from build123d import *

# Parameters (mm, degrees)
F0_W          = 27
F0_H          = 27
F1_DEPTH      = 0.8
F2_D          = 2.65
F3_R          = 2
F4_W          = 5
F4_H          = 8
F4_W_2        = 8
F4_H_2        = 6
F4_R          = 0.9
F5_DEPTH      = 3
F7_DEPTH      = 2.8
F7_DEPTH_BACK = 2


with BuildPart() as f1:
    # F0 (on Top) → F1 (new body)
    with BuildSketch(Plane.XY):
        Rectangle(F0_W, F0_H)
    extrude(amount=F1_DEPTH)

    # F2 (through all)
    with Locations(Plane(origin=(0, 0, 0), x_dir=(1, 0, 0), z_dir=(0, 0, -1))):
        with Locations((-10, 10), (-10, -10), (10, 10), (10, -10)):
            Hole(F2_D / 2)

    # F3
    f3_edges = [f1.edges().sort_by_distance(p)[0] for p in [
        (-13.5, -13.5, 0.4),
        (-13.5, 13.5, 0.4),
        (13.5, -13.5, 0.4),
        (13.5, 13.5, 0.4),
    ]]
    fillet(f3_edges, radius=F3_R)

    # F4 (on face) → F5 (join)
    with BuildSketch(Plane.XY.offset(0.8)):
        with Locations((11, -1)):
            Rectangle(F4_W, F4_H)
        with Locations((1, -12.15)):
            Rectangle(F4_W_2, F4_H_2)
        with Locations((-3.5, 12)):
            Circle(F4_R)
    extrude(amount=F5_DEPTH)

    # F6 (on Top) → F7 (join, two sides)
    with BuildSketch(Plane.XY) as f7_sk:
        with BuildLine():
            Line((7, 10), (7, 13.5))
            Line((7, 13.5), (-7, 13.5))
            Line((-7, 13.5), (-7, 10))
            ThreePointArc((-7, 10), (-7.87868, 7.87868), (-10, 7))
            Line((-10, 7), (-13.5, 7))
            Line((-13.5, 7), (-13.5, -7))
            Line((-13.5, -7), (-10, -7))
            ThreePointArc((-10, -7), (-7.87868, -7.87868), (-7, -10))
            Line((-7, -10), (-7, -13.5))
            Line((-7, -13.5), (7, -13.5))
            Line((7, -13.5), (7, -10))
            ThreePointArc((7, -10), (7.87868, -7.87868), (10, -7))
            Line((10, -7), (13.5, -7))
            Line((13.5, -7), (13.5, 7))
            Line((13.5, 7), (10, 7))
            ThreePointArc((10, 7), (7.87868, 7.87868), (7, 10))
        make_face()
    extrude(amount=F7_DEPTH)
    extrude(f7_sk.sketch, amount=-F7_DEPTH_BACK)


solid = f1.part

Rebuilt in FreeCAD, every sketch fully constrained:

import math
import FreeCAD as App
import Part
import Sketcher
from FreeCAD import Vector
Q = App.Units.Quantity


def edges_at(feature, points):
    """Names of the edges that pass closest to the given points."""
    edges = feature.Shape.Edges
    near = lambda p: min(range(len(edges)), key=lambda i: edges[i].distToShape(Part.Vertex(*p))[0])
    return sorted({f"Edge{near(p) + 1}" for p in points})

doc = App.newDocument("Part")
body = doc.addObject("PartDesign::Body", "Body")

sketch1 = body.newObject("Sketcher::SketchObject", "Sketch")
sketch1.AttachmentSupport = (doc.getObject("XY_Plane"), [""])
sketch1.MapMode = "FlatFace"
sketch1.addGeometry(Part.LineSegment(Vector(-14, 14, 0), Vector(-14, -14, 0)), False)
sketch1.addGeometry(Part.LineSegment(Vector(-14, -14, 0), Vector(14, -14, 0)), False)
sketch1.addGeometry(Part.LineSegment(Vector(14, -14, 0), Vector(14, 14, 0)), False)
sketch1.addGeometry(Part.LineSegment(Vector(14, 14, 0), Vector(-14, 14, 0)), False)
sketch1.addConstraint(Sketcher.Constraint("Coincident", 0, 2, 1, 1))
sketch1.addConstraint(Sketcher.Constraint("Coincident", 1, 2, 2, 1))
sketch1.addConstraint(Sketcher.Constraint("Coincident", 2, 2, 3, 1))
sketch1.addConstraint(Sketcher.Constraint("Coincident", 3, 2, 0, 1))
sketch1.addConstraint(Sketcher.Constraint("Vertical", 0))
sketch1.addConstraint(Sketcher.Constraint("Horizontal", 1))
sketch1.addConstraint(Sketcher.Constraint("Vertical", 2))
sketch1.addConstraint(Sketcher.Constraint("Horizontal", 3))
sketch1.addConstraint(Sketcher.Constraint("Symmetric", 0, 2, 2, 2, -1, 1))
sketch1.addConstraint(Sketcher.Constraint("Equal", 3, 0))
sketch1.addConstraint(Sketcher.Constraint("DistanceX", 1, 1, 1, 2, Q("27 mm")))
pad1 = body.newObject("PartDesign::Pad", "Pad")
pad1.Profile = sketch1
pad1.Length = 0.8

sketch2 = body.newObject("Sketcher::SketchObject", "Sketch001")
sketch2.AttachmentSupport = (doc.getObject("XY_Plane"), [""])
sketch2.MapMode = "FlatFace"
sketch2.addGeometry(Part.Circle(Vector(-10, -10, 0), Vector(0, 0, 1), 1.3), False)
sketch2.addGeometry(Part.Circle(Vector(-10, 10, 0), Vector(0, 0, 1), 1.3), False)
sketch2.addGeometry(Part.Circle(Vector(10, -10, 0), Vector(0, 0, 1), 1.3), False)
sketch2.addGeometry(Part.Circle(Vector(10, 10, 0), Vector(0, 0, 1), 1.3), False)
sketch2.addConstraint(Sketcher.Constraint("Equal", 0, 1))
sketch2.addConstraint(Sketcher.Constraint("Equal", 1, 2))
sketch2.addConstraint(Sketcher.Constraint("Equal", 2, 3))
sketch2.addConstraint(Sketcher.Constraint("Symmetric", 1, 3, 2, 3, -1, 1))
sketch2.addConstraint(Sketcher.Constraint("Symmetric", 0, 3, 3, 3, -1, 1))
sketch2.addConstraint(Sketcher.Constraint("Symmetric", 0, 3, 2, 3, -2))
sketch2.addConstraint(Sketcher.Constraint("Diameter", 0, Q("2.65 mm")))
sketch2.addConstraint(Sketcher.Constraint("DistanceX", 0, 3, -1, 1, Q("10 mm")))
sketch2.addConstraint(Sketcher.Constraint("DistanceY", 0, 3, -1, 1, Q("10 mm")))
doc.recompute()
hole = body.newObject("PartDesign::Hole", "Hole")
hole.Profile = sketch2
hole.ThreadType = "None"
hole.Diameter = 2.65
hole.DepthType = "ThroughAll"
hole.Reversed = True
doc.recompute()

fillet = body.newObject("PartDesign::Fillet", "Fillet")
fillet.Base = (hole, edges_at(hole, [
    (-13.5, -13.5, 0.4),
    (-13.5, 13.5, 0.4),
    (13.5, -13.5, 0.4),
    (13.5, 13.5, 0.4),
]))
fillet.Radius = 2

sketch3 = body.newObject("Sketcher::SketchObject", "Sketch002")
sketch3.AttachmentSupport = (doc.getObject("XY_Plane"), [""])
sketch3.MapMode = "FlatFace"
sketch3.AttachmentOffset = App.Placement(Vector(0, 0, 0.8), App.Rotation())
sketch3.addGeometry(Part.LineSegment(Vector(8.5, 3, 0), Vector(8.5, -5, 0)), False)
sketch3.addGeometry(Part.LineSegment(Vector(8.5, -5, 0), Vector(13.5, -5, 0)), False)
sketch3.addGeometry(Part.LineSegment(Vector(13.5, -5, 0), Vector(13.5, 3, 0)), False)
sketch3.addGeometry(Part.LineSegment(Vector(13.5, 3, 0), Vector(8.5, 3, 0)), False)
sketch3.addGeometry(Part.LineSegment(Vector(-3, -9.2, 0), Vector(-3, -15.2, 0)), False)
sketch3.addGeometry(Part.LineSegment(Vector(-3, -15.2, 0), Vector(5, -15.2, 0)), False)
sketch3.addGeometry(Part.LineSegment(Vector(5, -15.2, 0), Vector(5, -9.2, 0)), False)
sketch3.addGeometry(Part.LineSegment(Vector(5, -9.2, 0), Vector(-3, -9.2, 0)), False)
sketch3.addGeometry(Part.Circle(Vector(-3.5, 12, 0), Vector(0, 0, 1), 0.9), False)
sketch3.addConstraint(Sketcher.Constraint("Coincident", 0, 2, 1, 1))
sketch3.addConstraint(Sketcher.Constraint("Coincident", 1, 2, 2, 1))
sketch3.addConstraint(Sketcher.Constraint("Coincident", 2, 2, 3, 1))
sketch3.addConstraint(Sketcher.Constraint("Coincident", 3, 2, 0, 1))
sketch3.addConstraint(Sketcher.Constraint("Coincident", 4, 2, 5, 1))
sketch3.addConstraint(Sketcher.Constraint("Coincident", 5, 2, 6, 1))
sketch3.addConstraint(Sketcher.Constraint("Coincident", 6, 2, 7, 1))
sketch3.addConstraint(Sketcher.Constraint("Coincident", 7, 2, 4, 1))
sketch3.addConstraint(Sketcher.Constraint("Vertical", 0))
sketch3.addConstraint(Sketcher.Constraint("Horizontal", 1))
sketch3.addConstraint(Sketcher.Constraint("Vertical", 2))
sketch3.addConstraint(Sketcher.Constraint("Horizontal", 3))
sketch3.addConstraint(Sketcher.Constraint("Vertical", 4))
sketch3.addConstraint(Sketcher.Constraint("Horizontal", 5))
sketch3.addConstraint(Sketcher.Constraint("Vertical", 6))
sketch3.addConstraint(Sketcher.Constraint("Horizontal", 7))
sketch3.addConstraint(Sketcher.Constraint("Equal", 7, 0))
sketch3.addConstraint(Sketcher.Constraint("Diameter", 8, Q("1.8 mm")))
sketch3.addConstraint(Sketcher.Constraint("DistanceX", 1, 1, 1, 2, Q("5 mm")))
sketch3.addConstraint(Sketcher.Constraint("DistanceX", 5, 1, 5, 2, Q("8 mm")))
sketch3.addConstraint(Sketcher.Constraint("DistanceY", 4, 2, 4, 1, Q("6 mm")))
sketch3.addConstraint(Sketcher.Constraint("DistanceY", -1, 1, 8, 3, Q("12 mm")))
sketch3.addConstraint(Sketcher.Constraint("DistanceY", 0, 2, -1, 1, Q("5 mm")))
sketch3.addConstraint(Sketcher.Constraint("DistanceX", 4, 2, -1, 1, Q("3 mm")))
sketch3.addConstraint(Sketcher.Constraint("DistanceX", 8, 3, 0, 2, Q("12 mm")))
sketch3.addConstraint(Sketcher.Constraint("DistanceX", 8, 3, -1, 1, Q("3.5 mm")))
sketch3.addConstraint(Sketcher.Constraint("DistanceY", 4, 2, -1, 1, Q("15.15 mm")))
pad2 = body.newObject("PartDesign::Pad", "Pad001")
pad2.Profile = sketch3
pad2.Length = 3

sketch4 = body.newObject("Sketcher::SketchObject", "Sketch003")
sketch4.AttachmentSupport = (doc.getObject("XY_Plane"), [""])
sketch4.MapMode = "FlatFace"
sketch4.addGeometry(Part.LineSegment(Vector(7, 10, 0), Vector(7, 13.5, 0)), False)
sketch4.addGeometry(Part.LineSegment(Vector(7, 13.5, 0), Vector(-7, 13.5, 0)), False)
sketch4.addGeometry(Part.LineSegment(Vector(-7, 13.5, 0), Vector(-7, 10, 0)), False)
sketch4.addGeometry(Part.ArcOfCircle(Part.Circle(Vector(-10, 10, 0), Vector(0, 0, 1), 3), math.radians(-90), math.radians(0)), False)
sketch4.addGeometry(Part.LineSegment(Vector(-10, 7, 0), Vector(-13.5, 7, 0)), False)
sketch4.addGeometry(Part.LineSegment(Vector(-13.5, 7, 0), Vector(-13.5, -7, 0)), False)
sketch4.addGeometry(Part.LineSegment(Vector(-13.5, -7, 0), Vector(-10, -7, 0)), False)
sketch4.addGeometry(Part.ArcOfCircle(Part.Circle(Vector(-10, -10, 0), Vector(0, 0, 1), 3), math.radians(0), math.radians(90)), False)
sketch4.addGeometry(Part.LineSegment(Vector(-7, -10, 0), Vector(-7, -13.5, 0)), False)
sketch4.addGeometry(Part.LineSegment(Vector(-7, -13.5, 0), Vector(7, -13.5, 0)), False)
sketch4.addGeometry(Part.LineSegment(Vector(7, -13.5, 0), Vector(7, -10, 0)), False)
sketch4.addGeometry(Part.ArcOfCircle(Part.Circle(Vector(10, -10, 0), Vector(0, 0, 1), 3), math.radians(90), math.radians(180)), False)
sketch4.addGeometry(Part.LineSegment(Vector(10, -7, 0), Vector(13.5, -7, 0)), False)
sketch4.addGeometry(Part.LineSegment(Vector(13.5, -7, 0), Vector(13.5, 7, 0)), False)
sketch4.addGeometry(Part.LineSegment(Vector(13.5, 7, 0), Vector(10, 7, 0)), False)
sketch4.addGeometry(Part.ArcOfCircle(Part.Circle(Vector(10, 10, 0), Vector(0, 0, 1), 3), math.radians(-180), math.radians(-90)), False)
sketch4.addConstraint(Sketcher.Constraint("Coincident", 0, 2, 1, 1))
sketch4.addConstraint(Sketcher.Constraint("Coincident", 1, 2, 2, 1))
sketch4.addConstraint(Sketcher.Constraint("Tangent", 2, 2, 3, 2))
sketch4.addConstraint(Sketcher.Constraint("Tangent", 3, 1, 4, 1))
sketch4.addConstraint(Sketcher.Constraint("Coincident", 4, 2, 5, 1))
sketch4.addConstraint(Sketcher.Constraint("Coincident", 5, 2, 6, 1))
sketch4.addConstraint(Sketcher.Constraint("Tangent", 6, 2, 7, 2))
sketch4.addConstraint(Sketcher.Constraint("Tangent", 7, 1, 8, 1))
sketch4.addConstraint(Sketcher.Constraint("Coincident", 8, 2, 9, 1))
sketch4.addConstraint(Sketcher.Constraint("Coincident", 9, 2, 10, 1))
sketch4.addConstraint(Sketcher.Constraint("Tangent", 10, 2, 11, 2))
sketch4.addConstraint(Sketcher.Constraint("Tangent", 11, 1, 12, 1))
sketch4.addConstraint(Sketcher.Constraint("Coincident", 12, 2, 13, 1))
sketch4.addConstraint(Sketcher.Constraint("Coincident", 13, 2, 14, 1))
sketch4.addConstraint(Sketcher.Constraint("Tangent", 14, 2, 15, 2))
sketch4.addConstraint(Sketcher.Constraint("Tangent", 15, 1, 0, 1))
sketch4.addConstraint(Sketcher.Constraint("Vertical", 0))
sketch4.addConstraint(Sketcher.Constraint("Horizontal", 1))
sketch4.addConstraint(Sketcher.Constraint("Vertical", 2))
sketch4.addConstraint(Sketcher.Constraint("Horizontal", 4))
sketch4.addConstraint(Sketcher.Constraint("Vertical", 5))
sketch4.addConstraint(Sketcher.Constraint("Horizontal", 6))
sketch4.addConstraint(Sketcher.Constraint("Vertical", 8))
sketch4.addConstraint(Sketcher.Constraint("Horizontal", 9))
sketch4.addConstraint(Sketcher.Constraint("Vertical", 10))
sketch4.addConstraint(Sketcher.Constraint("Horizontal", 12))
sketch4.addConstraint(Sketcher.Constraint("Vertical", 13))
sketch4.addConstraint(Sketcher.Constraint("Horizontal", 14))
sketch4.addConstraint(Sketcher.Constraint("Equal", 3, 7))
sketch4.addConstraint(Sketcher.Constraint("Equal", 7, 11))
sketch4.addConstraint(Sketcher.Constraint("Equal", 11, 15))
sketch4.addConstraint(Sketcher.Constraint("Symmetric", 3, 3, 11, 3, -1, 1))
sketch4.addConstraint(Sketcher.Constraint("Symmetric", 7, 3, 15, 3, -1, 1))
sketch4.addConstraint(Sketcher.Constraint("Symmetric", 7, 3, 11, 3, -2))
sketch4.addConstraint(Sketcher.Constraint("Equal", 6, 12))
sketch4.addConstraint(Sketcher.Constraint("Equal", 14, 0))
sketch4.addConstraint(Sketcher.Constraint("Equal", 9, 5))
sketch4.addConstraint(Sketcher.Constraint("Equal", 2, 8))
sketch4.addConstraint(Sketcher.Constraint("Radius", 3, Q("3.000001 mm")))
sketch4.addConstraint(Sketcher.Constraint("DistanceX", 1, 2, 1, 1, Q("14 mm")))
sketch4.addConstraint(Sketcher.Constraint("DistanceX", 4, 2, 4, 1, Q("3.5 mm")))
pad3 = body.newObject("PartDesign::Pad", "Pad002")
pad3.Profile = sketch4
pad3.Type = "TwoLengths"
pad3.Length = 2.8
pad3.Length2 = 2

doc.recompute()
